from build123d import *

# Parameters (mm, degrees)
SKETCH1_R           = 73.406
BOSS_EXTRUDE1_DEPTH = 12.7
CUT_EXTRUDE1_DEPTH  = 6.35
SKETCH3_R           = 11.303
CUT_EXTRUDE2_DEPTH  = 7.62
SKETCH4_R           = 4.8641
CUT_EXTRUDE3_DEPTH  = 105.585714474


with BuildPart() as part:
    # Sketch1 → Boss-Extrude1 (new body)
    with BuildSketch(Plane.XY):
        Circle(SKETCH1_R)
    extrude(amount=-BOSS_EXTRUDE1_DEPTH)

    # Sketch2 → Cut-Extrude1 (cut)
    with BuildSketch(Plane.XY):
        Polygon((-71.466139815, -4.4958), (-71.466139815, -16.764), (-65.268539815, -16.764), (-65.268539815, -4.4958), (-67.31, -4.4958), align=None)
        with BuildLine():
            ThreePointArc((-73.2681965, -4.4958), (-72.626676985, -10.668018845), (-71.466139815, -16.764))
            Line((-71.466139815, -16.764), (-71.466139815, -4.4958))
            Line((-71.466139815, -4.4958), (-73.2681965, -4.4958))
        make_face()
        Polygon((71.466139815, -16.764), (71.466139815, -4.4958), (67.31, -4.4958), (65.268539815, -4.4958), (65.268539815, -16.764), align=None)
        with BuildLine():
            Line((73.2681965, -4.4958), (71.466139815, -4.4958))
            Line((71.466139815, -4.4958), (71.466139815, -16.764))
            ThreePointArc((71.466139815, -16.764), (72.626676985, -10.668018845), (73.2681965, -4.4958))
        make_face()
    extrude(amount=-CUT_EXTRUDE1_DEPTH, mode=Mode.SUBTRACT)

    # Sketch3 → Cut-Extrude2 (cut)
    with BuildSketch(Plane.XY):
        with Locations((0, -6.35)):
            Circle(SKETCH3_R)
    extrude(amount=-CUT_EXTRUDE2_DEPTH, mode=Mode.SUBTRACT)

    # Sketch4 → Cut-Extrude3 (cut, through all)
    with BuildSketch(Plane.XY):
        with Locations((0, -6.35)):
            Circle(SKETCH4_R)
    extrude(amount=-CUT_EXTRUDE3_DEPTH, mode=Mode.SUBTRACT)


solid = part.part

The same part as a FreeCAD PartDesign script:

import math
import FreeCAD as App
import Part
import Sketcher

V = App.Vector
Q = App.Units.Quantity

doc = App.newDocument("Part")
body = doc.addObject("PartDesign::Body", "Body")

# Sketch on XY plane
sketch1 = body.newObject("Sketcher::SketchObject", "Sketch")
sketch1.AttachmentSupport = (doc.getObject("XY_Plane"), [""])
sketch1.MapMode = "FlatFace"
sketch1.addGeometry(Part.Circle(V(0, 0, 0), V(0, 0, 1), 73.406), False)
sketch1.addConstraint([
    Sketcher.Constraint("Coincident", 0, 3, -1, 1),
    Sketcher.Constraint("Diameter", 0, Q("5.78 in")),
])
pad1 = body.newObject("PartDesign::Pad", "Pad")
pad1.Profile = sketch1
pad1.Length = Q("0.5 in")
pad1.Reversed = True

# Sketch on XY plane
sketch2 = body.newObject("Sketcher::SketchObject", "Sketch001")
sketch2.AttachmentSupport = (doc.getObject("XY_Plane"), [""])
sketch2.MapMode = "FlatFace"
sketch2.addGeometry([
    Part.LineSegment(V(-71.46614, -16.764, 0), V(-65.26854, -16.764, 0)),  # 0
    Part.LineSegment(V(-65.26854, -16.764, 0), V(-65.26854, -4.4958, 0)),  # 1
    Part.LineSegment(V(-65.26854, -4.4958, 0), V(-73.268197, -4.4958, 0)),  # 2
    Part.ArcOfCircle(Part.Circle(V(0, 0, 0), V(0, 0, 1), 73.406), math.radians(-176.488684), math.radians(-166.798656)),  # 3
    Part.LineSegment(V(65.26854, -4.4958, 0), V(65.26854, -16.764, 0)),  # 4
    Part.LineSegment(V(65.26854, -16.764, 0), V(71.46614, -16.764, 0)),  # 5
    Part.ArcOfCircle(Part.Circle(V(0, 0, 0), V(0, 0, 1), 73.406), math.radians(-13.201344), math.radians(-3.511316)),  # 6
    Part.LineSegment(V(73.268197, -4.4958, 0), V(65.26854, -4.4958, 0)),  # 7
], False)
sketch2.addConstraint([
    Sketcher.Constraint("Coincident", 0, 2, 1, 1),
    Sketcher.Constraint("Coincident", 1, 2, 2, 1),
    Sketcher.Constraint("Coincident", 2, 2, 3, 1),
    Sketcher.Constraint("Coincident", 3, 2, 0, 1),
    Sketcher.Constraint("Coincident", 4, 2, 5, 1),
    Sketcher.Constraint("Coincident", 5, 2, 6, 1),
    Sketcher.Constraint("Coincident", 6, 2, 7, 1),
    Sketcher.Constraint("Coincident", 7, 2, 4, 1),
    Sketcher.Constraint("Horizontal", 0),
    Sketcher.Constraint("Vertical", 1),
    Sketcher.Constraint("Horizontal", 2),
    Sketcher.Constraint("Vertical", 4),
    Sketcher.Constraint("Horizontal", 5),
    Sketcher.Constraint("Horizontal", 7),
    Sketcher.Constraint("Coincident", 3, 3, -1, 1),
    Sketcher.Constraint("Coincident", 6, 3, -1, 1),
    Sketcher.Constraint("Equal", 3, 6),
    Sketcher.Constraint("Symmetric", 0, 2, 4, 2, -2),
    Sketcher.Constraint("Horizontal", 2, 2, 6, 2),
    Sketcher.Constraint("Radius", 3, Q("2.89 in")),
    Sketcher.Constraint("DistanceX", 0, 1, 0, 2, Q("0.244 in")),
    Sketcher.Constraint("DistanceY", 1, 1, 1, 2, Q("0.483 in")),
    Sketcher.Constraint("DistanceY", 0, 2, -1, 1, Q("0.66 in")),
])
pocket1 = body.newObject("PartDesign::Pocket", "Pocket")
pocket1.Profile = sketch2
pocket1.Length = Q("0.25 in")

# Sketch on XY plane
sketch3 = body.newObject("Sketcher::SketchObject", "Sketch002")
sketch3.AttachmentSupport = (doc.getObject("XY_Plane"), [""])
sketch3.MapMode = "FlatFace"
sketch3.addGeometry(Part.Circle(V(0, -6.35, 0), V(0, 0, 1), 11.303), False)
sketch3.addConstraint([
    Sketcher.Constraint("PointOnObject", 0, 3, -2),
    Sketcher.Constraint("Diameter", 0, Q("0.89 in")),
    Sketcher.Constraint("DistanceY", 0, 3, -1, 1, Q("0.25 in")),
])
pocket2 = body.newObject("PartDesign::Pocket", "Pocket001")
pocket2.Profile = sketch3
pocket2.Length = Q("0.3 in")

# Sketch on XY plane
sketch4 = body.newObject("Sketcher::SketchObject", "Sketch003")
sketch4.AttachmentSupport = (doc.getObject("XY_Plane"), [""])
sketch4.MapMode = "FlatFace"
sketch4.addGeometry(Part.Circle(V(0, -6.35, 0), V(0, 0, 1), 4.8641), False)
sketch4.addConstraint([
    Sketcher.Constraint("PointOnObject", 0, 3, -2),
    Sketcher.Constraint("Diameter", 0, Q("0.383 in")),
    Sketcher.Constraint("DistanceY", 0, 3, -1, 1, Q("0.25 in")),
])
pocket3 = body.newObject("PartDesign::Pocket", "Pocket002")
pocket3.Profile = sketch4
pocket3.Type = "ThroughAll"

doc.recompute()
